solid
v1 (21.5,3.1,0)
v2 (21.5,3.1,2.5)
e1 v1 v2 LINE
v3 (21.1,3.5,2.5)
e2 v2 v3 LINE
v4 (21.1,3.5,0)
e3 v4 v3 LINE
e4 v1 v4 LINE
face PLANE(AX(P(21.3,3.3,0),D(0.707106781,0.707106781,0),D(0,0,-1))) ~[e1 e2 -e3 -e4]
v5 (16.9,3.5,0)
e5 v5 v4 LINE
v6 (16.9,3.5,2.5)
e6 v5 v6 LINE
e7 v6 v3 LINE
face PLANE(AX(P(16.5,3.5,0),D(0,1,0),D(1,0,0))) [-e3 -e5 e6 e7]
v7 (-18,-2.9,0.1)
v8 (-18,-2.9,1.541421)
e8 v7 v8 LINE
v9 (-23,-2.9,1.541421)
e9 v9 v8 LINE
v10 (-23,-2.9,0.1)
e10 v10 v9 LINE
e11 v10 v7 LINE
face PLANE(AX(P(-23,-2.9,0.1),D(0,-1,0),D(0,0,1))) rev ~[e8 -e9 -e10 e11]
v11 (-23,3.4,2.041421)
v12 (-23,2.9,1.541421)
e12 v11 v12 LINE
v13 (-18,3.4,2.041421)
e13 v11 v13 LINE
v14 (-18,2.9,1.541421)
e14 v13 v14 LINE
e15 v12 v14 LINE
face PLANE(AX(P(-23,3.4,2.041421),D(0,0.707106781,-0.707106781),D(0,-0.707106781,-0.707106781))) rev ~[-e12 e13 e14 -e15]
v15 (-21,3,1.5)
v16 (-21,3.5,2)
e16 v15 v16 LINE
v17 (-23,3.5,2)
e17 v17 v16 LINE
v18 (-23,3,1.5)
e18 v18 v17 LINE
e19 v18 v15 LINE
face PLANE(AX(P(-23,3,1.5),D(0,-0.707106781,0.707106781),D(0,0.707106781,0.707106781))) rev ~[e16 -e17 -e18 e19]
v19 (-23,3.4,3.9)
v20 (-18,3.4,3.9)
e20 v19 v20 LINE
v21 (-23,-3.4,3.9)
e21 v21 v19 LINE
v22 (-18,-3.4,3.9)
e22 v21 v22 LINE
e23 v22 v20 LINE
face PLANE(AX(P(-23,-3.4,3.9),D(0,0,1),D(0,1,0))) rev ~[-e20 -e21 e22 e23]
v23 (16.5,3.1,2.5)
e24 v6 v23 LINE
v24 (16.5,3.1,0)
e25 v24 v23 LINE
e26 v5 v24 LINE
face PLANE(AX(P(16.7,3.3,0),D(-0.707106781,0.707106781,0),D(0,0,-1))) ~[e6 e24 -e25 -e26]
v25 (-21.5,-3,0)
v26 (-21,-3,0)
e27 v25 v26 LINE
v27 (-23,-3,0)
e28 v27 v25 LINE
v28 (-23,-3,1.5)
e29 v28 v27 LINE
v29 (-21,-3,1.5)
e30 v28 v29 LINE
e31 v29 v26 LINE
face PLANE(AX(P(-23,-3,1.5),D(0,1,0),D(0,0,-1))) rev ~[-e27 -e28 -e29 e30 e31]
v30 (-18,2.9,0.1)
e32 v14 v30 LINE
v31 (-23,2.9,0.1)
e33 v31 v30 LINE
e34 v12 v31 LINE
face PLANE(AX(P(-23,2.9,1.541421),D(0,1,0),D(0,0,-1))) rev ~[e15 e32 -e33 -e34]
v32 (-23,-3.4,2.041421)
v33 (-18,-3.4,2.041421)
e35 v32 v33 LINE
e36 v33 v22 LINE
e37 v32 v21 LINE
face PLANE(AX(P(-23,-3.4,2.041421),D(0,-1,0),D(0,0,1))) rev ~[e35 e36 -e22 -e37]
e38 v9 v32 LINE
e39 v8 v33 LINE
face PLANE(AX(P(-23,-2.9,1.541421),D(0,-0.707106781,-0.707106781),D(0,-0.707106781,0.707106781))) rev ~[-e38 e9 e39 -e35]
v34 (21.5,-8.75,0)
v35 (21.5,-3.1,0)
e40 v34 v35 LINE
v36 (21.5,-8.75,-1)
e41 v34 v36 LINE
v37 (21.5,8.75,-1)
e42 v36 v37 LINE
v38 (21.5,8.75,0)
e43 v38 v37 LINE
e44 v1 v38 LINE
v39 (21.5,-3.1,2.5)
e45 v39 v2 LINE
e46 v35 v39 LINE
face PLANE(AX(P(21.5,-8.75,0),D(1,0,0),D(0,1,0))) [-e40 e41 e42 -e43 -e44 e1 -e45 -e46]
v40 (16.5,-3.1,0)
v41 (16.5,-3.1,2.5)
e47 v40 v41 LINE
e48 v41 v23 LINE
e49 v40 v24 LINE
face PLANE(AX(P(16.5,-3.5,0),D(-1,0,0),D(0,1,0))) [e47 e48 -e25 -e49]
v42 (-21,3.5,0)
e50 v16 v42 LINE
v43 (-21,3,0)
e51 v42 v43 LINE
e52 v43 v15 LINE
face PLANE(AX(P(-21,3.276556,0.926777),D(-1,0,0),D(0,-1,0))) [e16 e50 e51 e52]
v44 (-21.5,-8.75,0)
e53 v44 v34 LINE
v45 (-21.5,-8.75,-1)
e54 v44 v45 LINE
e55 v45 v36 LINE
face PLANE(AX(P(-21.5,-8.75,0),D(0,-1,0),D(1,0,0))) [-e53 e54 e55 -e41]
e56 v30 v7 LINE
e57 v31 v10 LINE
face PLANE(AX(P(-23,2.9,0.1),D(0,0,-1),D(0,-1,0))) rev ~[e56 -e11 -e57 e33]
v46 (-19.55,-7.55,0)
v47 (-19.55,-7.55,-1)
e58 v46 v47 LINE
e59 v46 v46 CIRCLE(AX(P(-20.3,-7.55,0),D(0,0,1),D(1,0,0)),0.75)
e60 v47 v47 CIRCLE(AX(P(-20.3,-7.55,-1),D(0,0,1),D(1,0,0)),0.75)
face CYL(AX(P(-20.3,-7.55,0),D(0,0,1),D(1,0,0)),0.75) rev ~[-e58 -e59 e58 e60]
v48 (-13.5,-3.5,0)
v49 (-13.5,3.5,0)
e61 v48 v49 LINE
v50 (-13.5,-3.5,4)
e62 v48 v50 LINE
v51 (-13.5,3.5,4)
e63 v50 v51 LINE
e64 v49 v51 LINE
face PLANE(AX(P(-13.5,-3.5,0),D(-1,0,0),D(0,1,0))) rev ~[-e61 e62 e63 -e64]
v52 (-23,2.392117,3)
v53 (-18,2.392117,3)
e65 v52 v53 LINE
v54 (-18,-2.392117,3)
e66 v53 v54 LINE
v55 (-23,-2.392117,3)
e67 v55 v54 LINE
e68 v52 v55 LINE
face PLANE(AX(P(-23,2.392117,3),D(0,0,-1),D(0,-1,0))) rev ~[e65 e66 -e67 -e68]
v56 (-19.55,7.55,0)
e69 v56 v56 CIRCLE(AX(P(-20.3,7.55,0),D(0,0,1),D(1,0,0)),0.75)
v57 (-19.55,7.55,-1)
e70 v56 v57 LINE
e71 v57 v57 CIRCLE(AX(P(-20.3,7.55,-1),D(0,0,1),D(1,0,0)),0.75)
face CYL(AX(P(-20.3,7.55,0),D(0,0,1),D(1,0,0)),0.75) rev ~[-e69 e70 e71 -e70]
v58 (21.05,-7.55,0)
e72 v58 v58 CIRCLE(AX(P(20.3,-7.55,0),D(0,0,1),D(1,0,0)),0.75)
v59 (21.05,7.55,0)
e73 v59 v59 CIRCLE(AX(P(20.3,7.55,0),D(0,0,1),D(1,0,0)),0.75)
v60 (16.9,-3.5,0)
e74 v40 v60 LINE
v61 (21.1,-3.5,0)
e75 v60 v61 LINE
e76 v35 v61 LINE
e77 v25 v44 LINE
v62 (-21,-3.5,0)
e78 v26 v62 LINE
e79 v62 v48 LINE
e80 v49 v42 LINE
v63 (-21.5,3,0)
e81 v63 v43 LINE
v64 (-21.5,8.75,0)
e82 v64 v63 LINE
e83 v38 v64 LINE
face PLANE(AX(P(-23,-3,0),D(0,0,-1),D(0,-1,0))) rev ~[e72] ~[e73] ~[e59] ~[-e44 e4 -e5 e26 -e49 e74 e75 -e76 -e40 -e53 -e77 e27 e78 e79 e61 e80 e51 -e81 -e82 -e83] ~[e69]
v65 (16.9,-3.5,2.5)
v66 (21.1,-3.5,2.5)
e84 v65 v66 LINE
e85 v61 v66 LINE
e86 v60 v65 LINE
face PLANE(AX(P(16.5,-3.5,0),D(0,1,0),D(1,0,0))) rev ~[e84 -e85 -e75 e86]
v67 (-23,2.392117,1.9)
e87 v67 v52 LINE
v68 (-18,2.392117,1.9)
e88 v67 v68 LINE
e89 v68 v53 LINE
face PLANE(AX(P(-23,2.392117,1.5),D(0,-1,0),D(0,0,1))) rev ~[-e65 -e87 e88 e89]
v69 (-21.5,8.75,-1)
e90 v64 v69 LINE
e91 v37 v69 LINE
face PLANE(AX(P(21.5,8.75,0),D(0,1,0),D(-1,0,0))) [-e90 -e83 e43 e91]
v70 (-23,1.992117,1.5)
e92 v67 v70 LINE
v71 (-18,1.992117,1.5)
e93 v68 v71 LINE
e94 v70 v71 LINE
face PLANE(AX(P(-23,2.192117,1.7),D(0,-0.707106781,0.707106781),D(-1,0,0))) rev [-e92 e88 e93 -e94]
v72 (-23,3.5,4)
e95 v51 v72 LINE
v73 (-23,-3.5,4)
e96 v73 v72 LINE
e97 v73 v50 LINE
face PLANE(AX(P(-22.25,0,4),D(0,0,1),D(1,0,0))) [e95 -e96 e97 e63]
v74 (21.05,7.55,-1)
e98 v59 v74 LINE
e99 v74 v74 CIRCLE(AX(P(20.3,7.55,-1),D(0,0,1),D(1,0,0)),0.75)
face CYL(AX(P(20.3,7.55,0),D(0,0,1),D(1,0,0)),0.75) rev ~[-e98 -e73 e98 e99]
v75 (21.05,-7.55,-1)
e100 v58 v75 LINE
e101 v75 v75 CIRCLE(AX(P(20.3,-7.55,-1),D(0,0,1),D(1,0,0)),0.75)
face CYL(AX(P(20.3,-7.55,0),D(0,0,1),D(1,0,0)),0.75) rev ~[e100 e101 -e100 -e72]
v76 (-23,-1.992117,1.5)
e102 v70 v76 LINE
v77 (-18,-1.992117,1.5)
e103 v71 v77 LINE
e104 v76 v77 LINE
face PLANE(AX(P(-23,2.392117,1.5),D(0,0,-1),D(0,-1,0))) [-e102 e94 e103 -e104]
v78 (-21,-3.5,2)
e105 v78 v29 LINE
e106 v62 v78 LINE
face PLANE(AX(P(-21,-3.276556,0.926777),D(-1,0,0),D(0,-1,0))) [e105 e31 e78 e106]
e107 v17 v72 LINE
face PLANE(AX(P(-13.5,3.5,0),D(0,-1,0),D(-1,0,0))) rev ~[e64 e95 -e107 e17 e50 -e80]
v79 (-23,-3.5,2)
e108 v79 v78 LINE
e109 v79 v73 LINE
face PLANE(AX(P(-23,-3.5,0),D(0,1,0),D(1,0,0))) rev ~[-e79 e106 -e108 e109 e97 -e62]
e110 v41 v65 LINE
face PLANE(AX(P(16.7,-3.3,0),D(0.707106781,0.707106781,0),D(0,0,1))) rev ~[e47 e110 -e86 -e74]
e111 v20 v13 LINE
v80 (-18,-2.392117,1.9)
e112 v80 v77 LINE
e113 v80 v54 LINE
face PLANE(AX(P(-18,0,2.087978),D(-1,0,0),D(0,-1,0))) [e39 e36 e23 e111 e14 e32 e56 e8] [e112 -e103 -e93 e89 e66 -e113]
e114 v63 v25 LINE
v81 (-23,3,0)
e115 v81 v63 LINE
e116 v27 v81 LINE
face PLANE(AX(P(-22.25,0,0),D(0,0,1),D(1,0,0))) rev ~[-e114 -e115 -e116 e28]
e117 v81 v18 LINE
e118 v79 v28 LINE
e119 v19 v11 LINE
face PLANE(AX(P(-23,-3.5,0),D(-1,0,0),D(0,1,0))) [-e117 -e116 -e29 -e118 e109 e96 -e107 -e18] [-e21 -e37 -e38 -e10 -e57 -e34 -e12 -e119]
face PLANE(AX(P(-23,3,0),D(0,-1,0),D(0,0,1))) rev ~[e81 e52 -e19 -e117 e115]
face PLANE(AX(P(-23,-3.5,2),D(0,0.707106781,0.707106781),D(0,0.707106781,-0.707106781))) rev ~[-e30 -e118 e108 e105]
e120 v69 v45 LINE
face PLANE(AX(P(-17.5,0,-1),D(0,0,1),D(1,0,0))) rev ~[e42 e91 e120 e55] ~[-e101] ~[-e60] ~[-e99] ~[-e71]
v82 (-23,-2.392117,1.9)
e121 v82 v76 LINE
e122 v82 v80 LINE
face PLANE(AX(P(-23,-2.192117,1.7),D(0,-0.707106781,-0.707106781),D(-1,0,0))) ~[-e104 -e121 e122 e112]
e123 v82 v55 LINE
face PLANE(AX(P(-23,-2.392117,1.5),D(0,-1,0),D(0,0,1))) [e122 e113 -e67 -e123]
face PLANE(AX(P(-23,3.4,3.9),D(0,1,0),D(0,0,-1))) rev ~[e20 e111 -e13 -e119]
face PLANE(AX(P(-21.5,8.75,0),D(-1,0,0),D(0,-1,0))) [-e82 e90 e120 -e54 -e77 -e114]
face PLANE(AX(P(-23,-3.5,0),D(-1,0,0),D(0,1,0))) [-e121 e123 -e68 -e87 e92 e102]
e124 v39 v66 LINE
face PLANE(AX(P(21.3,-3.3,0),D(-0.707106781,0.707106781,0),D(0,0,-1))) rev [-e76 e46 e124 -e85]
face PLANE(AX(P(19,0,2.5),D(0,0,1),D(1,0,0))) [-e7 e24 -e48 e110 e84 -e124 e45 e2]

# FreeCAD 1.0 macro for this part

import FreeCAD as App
import Part
import Sketcher


def edges_at(feature, points):
    """Names of the edges that pass closest to the given points."""
    edges = feature.Shape.Edges
    near = lambda p: min(range(len(edges)), key=lambda i: edges[i].distToShape(Part.Vertex(*p))[0])
    return sorted({f"Edge{near(p) + 1}" for p in points})


def add_polygon(sketch, points):
    """Adds a closed chain of lines whose ends are joined by coincident constraints."""
    first, n = sketch.GeometryCount, len(points)
    for a, b in zip(points, points[1:] + points[:1]):
        sketch.addGeometry(Part.LineSegment(App.Vector(*a, 0), App.Vector(*b, 0)), False)
    for i in range(n):
        sketch.addConstraint(Sketcher.Constraint("Coincident", first + i, 2, first + (i + 1) % n, 1))

doc = App.newDocument("Part")
body = doc.addObject("PartDesign::Body", "Body")

sketch1 = doc.addObject("Sketcher::SketchObject", "Sketch")
body.addObject(sketch1)
sketch1.AttachmentSupport = (doc.XY_Plane, [""])
sketch1.MapMode = "FlatFace"
add_polygon(sketch1, [(-21.5, -8.75), (21.5, -8.75), (21.5, 8.75), (-21.5, 8.75)])
sketch1.addGeometry(Part.Circle(App.Vector(-20.3, -7.55, 0), App.Vector(0, 0, 1), 0.75), False)
sketch1.addGeometry(Part.Circle(App.Vector(20.3, -7.55, 0), App.Vector(0, 0, 1), 0.75), False)
sketch1.addGeometry(Part.Circle(App.Vector(-20.3, 7.55, 0), App.Vector(0, 0, 1), 0.75), False)
sketch1.addGeometry(Part.Circle(App.Vector(20.3, 7.55, 0), App.Vector(0, 0, 1), 0.75), False)
sketch1.addConstraint(Sketcher.Constraint("Horizontal", 0))
sketch1.addConstraint(Sketcher.Constraint("Vertical", 1))
sketch1.addConstraint(Sketcher.Constraint("Horizontal", 2))
sketch1.addConstraint(Sketcher.Constraint("Vertical", 3))
sketch1.addConstraint(Sketcher.Constraint("Equal", 4, 5))
sketch1.addConstraint(Sketcher.Constraint("Equal", 5, 6))
sketch1.addConstraint(Sketcher.Constraint("Equal", 6, 7))
sketch1.addConstraint(Sketcher.Constraint("Symmetric", 5, 3, 6, 3, -1, 1))
sketch1.addConstraint(Sketcher.Constraint("Symmetric", 4, 3, 7, 3, -1, 1))
sketch1.addConstraint(Sketcher.Constraint("Symmetric", 0, 2, 2, 2, -1, 1))
sketch1.addConstraint(Sketcher.Constraint("Symmetric", 4, 3, 5, 3, -2))
sketch1.addConstraint(Sketcher.Constraint("Diameter", 4, 1.5))
sketch1.addConstraint(Sketcher.Constraint("DistanceX", 0, 1, 0, 2, 43.0))
sketch1.addConstraint(Sketcher.Constraint("DistanceY", 1, 1, 1, 2, 17.5))
sketch1.addConstraint(Sketcher.Constraint("DistanceX", 4, 3, -1, 1, 20.3))
sketch1.addConstraint(Sketcher.Constraint("DistanceY", 4, 3, 6, 3, 15.1))
pad1 = doc.addObject("PartDesign::Pad", "Pad")
body.addObject(pad1)
pad1.Profile = sketch1
pad1.Length = 1
pad1.Reversed = True

sketch2 = doc.addObject("Sketcher::SketchObject", "Sketch001")
body.addObject(sketch2)
sketch2.AttachmentSupport = (doc.XY_Plane, [""])
sketch2.MapMode = "FlatFace"
add_polygon(sketch2, [(-23, 3.5), (-23, -3.5), (-13.5, -3.5), (-13.5, 3.5)])
sketch2.addConstraint(Sketcher.Constraint("Vertical", 0))
sketch2.addConstraint(Sketcher.Constraint("Horizontal", 1))
sketch2.addConstraint(Sketcher.Constraint("Vertical", 2))
sketch2.addConstraint(Sketcher.Constraint("Horizontal", 3))
sketch2.addConstraint(Sketcher.Constraint("DistanceY", 0, 2, 0, 1, 7.0))
sketch2.addConstraint(Sketcher.Constraint("DistanceX", 1, 1, 1, 2, 9.5))
sketch2.addConstraint(Sketcher.Constraint("DistanceX", 0, 2, -1, 1, 23.0))
sketch2.addConstraint(Sketcher.Constraint("DistanceY", 0, 2, -1, 1, 3.5))
pad2 = doc.addObject("PartDesign::Pad", "Pad001")
body.addObject(pad2)
pad2.Profile = sketch2
pad2.Length = 4

sketch3 = doc.addObject("Sketcher::SketchObject", "Sketch002")
body.addObject(sketch3)
sketch3.AttachmentSupport = (doc.XY_Plane, [""])
sketch3.MapMode = "FlatFace"
add_polygon(sketch3, [(16.5, 3.5), (16.5, -3.5), (21.5, -3.5), (21.5, 3.5)])
sketch3.addConstraint(Sketcher.Constraint("Vertical", 0))
sketch3.addConstraint(Sketcher.Constraint("Horizontal", 1))
sketch3.addConstraint(Sketcher.Constraint("Vertical", 2))
sketch3.addConstraint(Sketcher.Constraint("Horizontal", 3))
sketch3.addConstraint(Sketcher.Constraint("DistanceX", 1, 1, 1, 2, 5.0))
sketch3.addConstraint(Sketcher.Constraint("DistanceY", 0, 2, 0, 1, 7.0))
sketch3.addConstraint(Sketcher.Constraint("DistanceX", -1, 1, 0, 2, 16.5))
sketch3.addConstraint(Sketcher.Constraint("DistanceY", 0, 2, -1, 1, 3.5))
pad3 = doc.addObject("PartDesign::Pad", "Pad002")
body.addObject(pad3)
pad3.Profile = sketch3
pad3.Length = 2.5

sketch4 = doc.addObject("Sketcher::SketchObject", "Sketch003")
body.addObject(sketch4)
sketch4.AttachmentSupport = (doc.YZ_Plane, [""])
sketch4.MapMode = "FlatFace"
sketch4.AttachmentOffset = App.Placement(App.Vector(0, 0, -23), App.Rotation())
add_polygon(sketch4, [(-3.4, 3.9), (3.4, 3.9), (3.4, 2.041421), (2.9, 1.541421), (2.9, 0.1), (-2.9, 0.1), (-2.9, 1.541421), (-3.4, 2.041421)])
add_polygon(sketch4, [(-2.392117, 1.5), (2.392117, 1.5), (2.392117, 3), (-2.392117, 3)])
sketch4.addConstraint(Sketcher.Constraint("Horizontal", 0))
sketch4.addConstraint(Sketcher.Constraint("Vertical", 1))
sketch4.addConstraint(Sketcher.Constraint("Vertical", 3))
sketch4.addConstraint(Sketcher.Constraint("Horizontal", 4))
sketch4.addConstraint(Sketcher.Constraint("Vertical", 5))
sketch4.addConstraint(Sketcher.Constraint("Vertical", 7))
sketch4.addConstraint(Sketcher.Constraint("Horizontal", 8))
sketch4.addConstraint(Sketcher.Constraint("Vertical", 9))
sketch4.addConstraint(Sketcher.Constraint("Horizontal", 10))
sketch4.addConstraint(Sketcher.Constraint("Vertical", 11))
sketch4.addConstraint(Sketcher.Constraint("Symmetric", 2, 2, 5, 2, -2))
sketch4.addConstraint(Sketcher.Constraint("Symmetric", 1, 2, 6, 2, -2))
sketch4.addConstraint(Sketcher.Constraint("Perpendicular", 2, 6))
sketch4.addConstraint(Sketcher.Constraint("DistanceX", 0, 1, 0, 2, 6.8))
sketch4.addConstraint(Sketcher.Constraint("DistanceX", 4, 2, 4, 1, 5.8))
sketch4.addConstraint(Sketcher.Constraint("DistanceY", 9, 1, 9, 2, 1.5))
sketch4.addConstraint(Sketcher.Constraint("DistanceY", -1, 1, 9, 2, 3.0))
sketch4.addConstraint(Sketcher.Constraint("DistanceY", -1, 1, 0, 2, 3.9))
sketch4.addConstraint(Sketcher.Constraint("DistanceY", -1, 1, 3, 2, 0.1))
sketch4.addConstraint(Sketcher.Constraint("DistanceY", 1, 2, 1, 1, 1.858579))
sketch4.addConstraint(Sketcher.Constraint("DistanceX", 8, 1, 8, 2, 4.784234))
sketch4.addConstraint(Sketcher.Constraint("DistanceX", -1, 1, 8, 2, 2.392117))
pocket1 = doc.addObject("PartDesign::Pocket", "Pocket")
body.addObject(pocket1)
pocket1.Profile = sketch4
pocket1.Length = 5
pocket1.Reversed = True

sketch5 = doc.addObject("Sketcher::SketchObject", "Sketch004")
body.addObject(sketch5)
sketch5.AttachmentSupport = (doc.YZ_Plane, [""])
sketch5.MapMode = "FlatFace"
sketch5.AttachmentOffset = App.Placement(App.Vector(0, 0, -23), App.Rotation())
add_polygon(sketch5, [(3, 1.5), (3.5, 2), (3.5, 0), (3, 0)])
add_polygon(sketch5, [(-3, 1.5), (-3, 0), (-3.5, 0), (-3.5, 2)])
sketch5.addConstraint(Sketcher.Constraint("Vertical", 1))
sketch5.addConstraint(Sketcher.Constraint("Horizontal", 2))
sketch5.addConstraint(Sketcher.Constraint("Vertical", 3))
sketch5.addConstraint(Sketcher.Constraint("Vertical", 4))
sketch5.addConstraint(Sketcher.Constraint("Horizontal", 5))
sketch5.addConstraint(Sketcher.Constraint("Vertical", 6))
sketch5.addConstraint(Sketcher.Constraint("Symmetric", 2, 2, 4, 2, -1, 1))
sketch5.addConstraint(Sketcher.Constraint("Symmetric", 1, 2, 5, 2, -2))
sketch5.addConstraint(Sketcher.Constraint("Perpendicular", 0, 7))
sketch5.addConstraint(Sketcher.Constraint("Horizontal", 0, 2, 6, 2))
sketch5.addConstraint(Sketcher.Constraint("Horizontal", 3, 2, 7, 2))
sketch5.addConstraint(Sketcher.Constraint("DistanceY", 1, 2, 1, 1, 2.0))
sketch5.addConstraint(Sketcher.Constraint("DistanceX", 2, 2, 2, 1, 0.5))
sketch5.addConstraint(Sketcher.Constraint("DistanceX", -1, 1, 2, 2, 3.0))
pocket2 = doc.addObject("PartDesign::Pocket", "Pocket001")
body.addObject(pocket2)
pocket2.Profile = sketch5
pocket2.Length = 2
pocket2.Reversed = True
doc.recompute()

chamfer = doc.addObject("PartDesign::Chamfer", "Chamfer")
body.addObject(chamfer)
chamfer.Base = (pocket2, edges_at(pocket2, [(-20.5, -2.392, 1.5), (-20.5, 2.392, 1.5)]))
chamfer.Size = 0.4
doc.recompute()

chamfer2 = doc.addObject("PartDesign::Chamfer", "Chamfer001")
body.addObject(chamfer2)
chamfer2.Base = (chamfer, edges_at(chamfer, [
    (21.5, 3.5, 1.25),
    (16.5, 3.5, 1.25),
    (21.5, -3.5, 1.25),
    (16.5, -3.5, 1.25),
]))
chamfer2.Size = 0.4

doc.recompute()
